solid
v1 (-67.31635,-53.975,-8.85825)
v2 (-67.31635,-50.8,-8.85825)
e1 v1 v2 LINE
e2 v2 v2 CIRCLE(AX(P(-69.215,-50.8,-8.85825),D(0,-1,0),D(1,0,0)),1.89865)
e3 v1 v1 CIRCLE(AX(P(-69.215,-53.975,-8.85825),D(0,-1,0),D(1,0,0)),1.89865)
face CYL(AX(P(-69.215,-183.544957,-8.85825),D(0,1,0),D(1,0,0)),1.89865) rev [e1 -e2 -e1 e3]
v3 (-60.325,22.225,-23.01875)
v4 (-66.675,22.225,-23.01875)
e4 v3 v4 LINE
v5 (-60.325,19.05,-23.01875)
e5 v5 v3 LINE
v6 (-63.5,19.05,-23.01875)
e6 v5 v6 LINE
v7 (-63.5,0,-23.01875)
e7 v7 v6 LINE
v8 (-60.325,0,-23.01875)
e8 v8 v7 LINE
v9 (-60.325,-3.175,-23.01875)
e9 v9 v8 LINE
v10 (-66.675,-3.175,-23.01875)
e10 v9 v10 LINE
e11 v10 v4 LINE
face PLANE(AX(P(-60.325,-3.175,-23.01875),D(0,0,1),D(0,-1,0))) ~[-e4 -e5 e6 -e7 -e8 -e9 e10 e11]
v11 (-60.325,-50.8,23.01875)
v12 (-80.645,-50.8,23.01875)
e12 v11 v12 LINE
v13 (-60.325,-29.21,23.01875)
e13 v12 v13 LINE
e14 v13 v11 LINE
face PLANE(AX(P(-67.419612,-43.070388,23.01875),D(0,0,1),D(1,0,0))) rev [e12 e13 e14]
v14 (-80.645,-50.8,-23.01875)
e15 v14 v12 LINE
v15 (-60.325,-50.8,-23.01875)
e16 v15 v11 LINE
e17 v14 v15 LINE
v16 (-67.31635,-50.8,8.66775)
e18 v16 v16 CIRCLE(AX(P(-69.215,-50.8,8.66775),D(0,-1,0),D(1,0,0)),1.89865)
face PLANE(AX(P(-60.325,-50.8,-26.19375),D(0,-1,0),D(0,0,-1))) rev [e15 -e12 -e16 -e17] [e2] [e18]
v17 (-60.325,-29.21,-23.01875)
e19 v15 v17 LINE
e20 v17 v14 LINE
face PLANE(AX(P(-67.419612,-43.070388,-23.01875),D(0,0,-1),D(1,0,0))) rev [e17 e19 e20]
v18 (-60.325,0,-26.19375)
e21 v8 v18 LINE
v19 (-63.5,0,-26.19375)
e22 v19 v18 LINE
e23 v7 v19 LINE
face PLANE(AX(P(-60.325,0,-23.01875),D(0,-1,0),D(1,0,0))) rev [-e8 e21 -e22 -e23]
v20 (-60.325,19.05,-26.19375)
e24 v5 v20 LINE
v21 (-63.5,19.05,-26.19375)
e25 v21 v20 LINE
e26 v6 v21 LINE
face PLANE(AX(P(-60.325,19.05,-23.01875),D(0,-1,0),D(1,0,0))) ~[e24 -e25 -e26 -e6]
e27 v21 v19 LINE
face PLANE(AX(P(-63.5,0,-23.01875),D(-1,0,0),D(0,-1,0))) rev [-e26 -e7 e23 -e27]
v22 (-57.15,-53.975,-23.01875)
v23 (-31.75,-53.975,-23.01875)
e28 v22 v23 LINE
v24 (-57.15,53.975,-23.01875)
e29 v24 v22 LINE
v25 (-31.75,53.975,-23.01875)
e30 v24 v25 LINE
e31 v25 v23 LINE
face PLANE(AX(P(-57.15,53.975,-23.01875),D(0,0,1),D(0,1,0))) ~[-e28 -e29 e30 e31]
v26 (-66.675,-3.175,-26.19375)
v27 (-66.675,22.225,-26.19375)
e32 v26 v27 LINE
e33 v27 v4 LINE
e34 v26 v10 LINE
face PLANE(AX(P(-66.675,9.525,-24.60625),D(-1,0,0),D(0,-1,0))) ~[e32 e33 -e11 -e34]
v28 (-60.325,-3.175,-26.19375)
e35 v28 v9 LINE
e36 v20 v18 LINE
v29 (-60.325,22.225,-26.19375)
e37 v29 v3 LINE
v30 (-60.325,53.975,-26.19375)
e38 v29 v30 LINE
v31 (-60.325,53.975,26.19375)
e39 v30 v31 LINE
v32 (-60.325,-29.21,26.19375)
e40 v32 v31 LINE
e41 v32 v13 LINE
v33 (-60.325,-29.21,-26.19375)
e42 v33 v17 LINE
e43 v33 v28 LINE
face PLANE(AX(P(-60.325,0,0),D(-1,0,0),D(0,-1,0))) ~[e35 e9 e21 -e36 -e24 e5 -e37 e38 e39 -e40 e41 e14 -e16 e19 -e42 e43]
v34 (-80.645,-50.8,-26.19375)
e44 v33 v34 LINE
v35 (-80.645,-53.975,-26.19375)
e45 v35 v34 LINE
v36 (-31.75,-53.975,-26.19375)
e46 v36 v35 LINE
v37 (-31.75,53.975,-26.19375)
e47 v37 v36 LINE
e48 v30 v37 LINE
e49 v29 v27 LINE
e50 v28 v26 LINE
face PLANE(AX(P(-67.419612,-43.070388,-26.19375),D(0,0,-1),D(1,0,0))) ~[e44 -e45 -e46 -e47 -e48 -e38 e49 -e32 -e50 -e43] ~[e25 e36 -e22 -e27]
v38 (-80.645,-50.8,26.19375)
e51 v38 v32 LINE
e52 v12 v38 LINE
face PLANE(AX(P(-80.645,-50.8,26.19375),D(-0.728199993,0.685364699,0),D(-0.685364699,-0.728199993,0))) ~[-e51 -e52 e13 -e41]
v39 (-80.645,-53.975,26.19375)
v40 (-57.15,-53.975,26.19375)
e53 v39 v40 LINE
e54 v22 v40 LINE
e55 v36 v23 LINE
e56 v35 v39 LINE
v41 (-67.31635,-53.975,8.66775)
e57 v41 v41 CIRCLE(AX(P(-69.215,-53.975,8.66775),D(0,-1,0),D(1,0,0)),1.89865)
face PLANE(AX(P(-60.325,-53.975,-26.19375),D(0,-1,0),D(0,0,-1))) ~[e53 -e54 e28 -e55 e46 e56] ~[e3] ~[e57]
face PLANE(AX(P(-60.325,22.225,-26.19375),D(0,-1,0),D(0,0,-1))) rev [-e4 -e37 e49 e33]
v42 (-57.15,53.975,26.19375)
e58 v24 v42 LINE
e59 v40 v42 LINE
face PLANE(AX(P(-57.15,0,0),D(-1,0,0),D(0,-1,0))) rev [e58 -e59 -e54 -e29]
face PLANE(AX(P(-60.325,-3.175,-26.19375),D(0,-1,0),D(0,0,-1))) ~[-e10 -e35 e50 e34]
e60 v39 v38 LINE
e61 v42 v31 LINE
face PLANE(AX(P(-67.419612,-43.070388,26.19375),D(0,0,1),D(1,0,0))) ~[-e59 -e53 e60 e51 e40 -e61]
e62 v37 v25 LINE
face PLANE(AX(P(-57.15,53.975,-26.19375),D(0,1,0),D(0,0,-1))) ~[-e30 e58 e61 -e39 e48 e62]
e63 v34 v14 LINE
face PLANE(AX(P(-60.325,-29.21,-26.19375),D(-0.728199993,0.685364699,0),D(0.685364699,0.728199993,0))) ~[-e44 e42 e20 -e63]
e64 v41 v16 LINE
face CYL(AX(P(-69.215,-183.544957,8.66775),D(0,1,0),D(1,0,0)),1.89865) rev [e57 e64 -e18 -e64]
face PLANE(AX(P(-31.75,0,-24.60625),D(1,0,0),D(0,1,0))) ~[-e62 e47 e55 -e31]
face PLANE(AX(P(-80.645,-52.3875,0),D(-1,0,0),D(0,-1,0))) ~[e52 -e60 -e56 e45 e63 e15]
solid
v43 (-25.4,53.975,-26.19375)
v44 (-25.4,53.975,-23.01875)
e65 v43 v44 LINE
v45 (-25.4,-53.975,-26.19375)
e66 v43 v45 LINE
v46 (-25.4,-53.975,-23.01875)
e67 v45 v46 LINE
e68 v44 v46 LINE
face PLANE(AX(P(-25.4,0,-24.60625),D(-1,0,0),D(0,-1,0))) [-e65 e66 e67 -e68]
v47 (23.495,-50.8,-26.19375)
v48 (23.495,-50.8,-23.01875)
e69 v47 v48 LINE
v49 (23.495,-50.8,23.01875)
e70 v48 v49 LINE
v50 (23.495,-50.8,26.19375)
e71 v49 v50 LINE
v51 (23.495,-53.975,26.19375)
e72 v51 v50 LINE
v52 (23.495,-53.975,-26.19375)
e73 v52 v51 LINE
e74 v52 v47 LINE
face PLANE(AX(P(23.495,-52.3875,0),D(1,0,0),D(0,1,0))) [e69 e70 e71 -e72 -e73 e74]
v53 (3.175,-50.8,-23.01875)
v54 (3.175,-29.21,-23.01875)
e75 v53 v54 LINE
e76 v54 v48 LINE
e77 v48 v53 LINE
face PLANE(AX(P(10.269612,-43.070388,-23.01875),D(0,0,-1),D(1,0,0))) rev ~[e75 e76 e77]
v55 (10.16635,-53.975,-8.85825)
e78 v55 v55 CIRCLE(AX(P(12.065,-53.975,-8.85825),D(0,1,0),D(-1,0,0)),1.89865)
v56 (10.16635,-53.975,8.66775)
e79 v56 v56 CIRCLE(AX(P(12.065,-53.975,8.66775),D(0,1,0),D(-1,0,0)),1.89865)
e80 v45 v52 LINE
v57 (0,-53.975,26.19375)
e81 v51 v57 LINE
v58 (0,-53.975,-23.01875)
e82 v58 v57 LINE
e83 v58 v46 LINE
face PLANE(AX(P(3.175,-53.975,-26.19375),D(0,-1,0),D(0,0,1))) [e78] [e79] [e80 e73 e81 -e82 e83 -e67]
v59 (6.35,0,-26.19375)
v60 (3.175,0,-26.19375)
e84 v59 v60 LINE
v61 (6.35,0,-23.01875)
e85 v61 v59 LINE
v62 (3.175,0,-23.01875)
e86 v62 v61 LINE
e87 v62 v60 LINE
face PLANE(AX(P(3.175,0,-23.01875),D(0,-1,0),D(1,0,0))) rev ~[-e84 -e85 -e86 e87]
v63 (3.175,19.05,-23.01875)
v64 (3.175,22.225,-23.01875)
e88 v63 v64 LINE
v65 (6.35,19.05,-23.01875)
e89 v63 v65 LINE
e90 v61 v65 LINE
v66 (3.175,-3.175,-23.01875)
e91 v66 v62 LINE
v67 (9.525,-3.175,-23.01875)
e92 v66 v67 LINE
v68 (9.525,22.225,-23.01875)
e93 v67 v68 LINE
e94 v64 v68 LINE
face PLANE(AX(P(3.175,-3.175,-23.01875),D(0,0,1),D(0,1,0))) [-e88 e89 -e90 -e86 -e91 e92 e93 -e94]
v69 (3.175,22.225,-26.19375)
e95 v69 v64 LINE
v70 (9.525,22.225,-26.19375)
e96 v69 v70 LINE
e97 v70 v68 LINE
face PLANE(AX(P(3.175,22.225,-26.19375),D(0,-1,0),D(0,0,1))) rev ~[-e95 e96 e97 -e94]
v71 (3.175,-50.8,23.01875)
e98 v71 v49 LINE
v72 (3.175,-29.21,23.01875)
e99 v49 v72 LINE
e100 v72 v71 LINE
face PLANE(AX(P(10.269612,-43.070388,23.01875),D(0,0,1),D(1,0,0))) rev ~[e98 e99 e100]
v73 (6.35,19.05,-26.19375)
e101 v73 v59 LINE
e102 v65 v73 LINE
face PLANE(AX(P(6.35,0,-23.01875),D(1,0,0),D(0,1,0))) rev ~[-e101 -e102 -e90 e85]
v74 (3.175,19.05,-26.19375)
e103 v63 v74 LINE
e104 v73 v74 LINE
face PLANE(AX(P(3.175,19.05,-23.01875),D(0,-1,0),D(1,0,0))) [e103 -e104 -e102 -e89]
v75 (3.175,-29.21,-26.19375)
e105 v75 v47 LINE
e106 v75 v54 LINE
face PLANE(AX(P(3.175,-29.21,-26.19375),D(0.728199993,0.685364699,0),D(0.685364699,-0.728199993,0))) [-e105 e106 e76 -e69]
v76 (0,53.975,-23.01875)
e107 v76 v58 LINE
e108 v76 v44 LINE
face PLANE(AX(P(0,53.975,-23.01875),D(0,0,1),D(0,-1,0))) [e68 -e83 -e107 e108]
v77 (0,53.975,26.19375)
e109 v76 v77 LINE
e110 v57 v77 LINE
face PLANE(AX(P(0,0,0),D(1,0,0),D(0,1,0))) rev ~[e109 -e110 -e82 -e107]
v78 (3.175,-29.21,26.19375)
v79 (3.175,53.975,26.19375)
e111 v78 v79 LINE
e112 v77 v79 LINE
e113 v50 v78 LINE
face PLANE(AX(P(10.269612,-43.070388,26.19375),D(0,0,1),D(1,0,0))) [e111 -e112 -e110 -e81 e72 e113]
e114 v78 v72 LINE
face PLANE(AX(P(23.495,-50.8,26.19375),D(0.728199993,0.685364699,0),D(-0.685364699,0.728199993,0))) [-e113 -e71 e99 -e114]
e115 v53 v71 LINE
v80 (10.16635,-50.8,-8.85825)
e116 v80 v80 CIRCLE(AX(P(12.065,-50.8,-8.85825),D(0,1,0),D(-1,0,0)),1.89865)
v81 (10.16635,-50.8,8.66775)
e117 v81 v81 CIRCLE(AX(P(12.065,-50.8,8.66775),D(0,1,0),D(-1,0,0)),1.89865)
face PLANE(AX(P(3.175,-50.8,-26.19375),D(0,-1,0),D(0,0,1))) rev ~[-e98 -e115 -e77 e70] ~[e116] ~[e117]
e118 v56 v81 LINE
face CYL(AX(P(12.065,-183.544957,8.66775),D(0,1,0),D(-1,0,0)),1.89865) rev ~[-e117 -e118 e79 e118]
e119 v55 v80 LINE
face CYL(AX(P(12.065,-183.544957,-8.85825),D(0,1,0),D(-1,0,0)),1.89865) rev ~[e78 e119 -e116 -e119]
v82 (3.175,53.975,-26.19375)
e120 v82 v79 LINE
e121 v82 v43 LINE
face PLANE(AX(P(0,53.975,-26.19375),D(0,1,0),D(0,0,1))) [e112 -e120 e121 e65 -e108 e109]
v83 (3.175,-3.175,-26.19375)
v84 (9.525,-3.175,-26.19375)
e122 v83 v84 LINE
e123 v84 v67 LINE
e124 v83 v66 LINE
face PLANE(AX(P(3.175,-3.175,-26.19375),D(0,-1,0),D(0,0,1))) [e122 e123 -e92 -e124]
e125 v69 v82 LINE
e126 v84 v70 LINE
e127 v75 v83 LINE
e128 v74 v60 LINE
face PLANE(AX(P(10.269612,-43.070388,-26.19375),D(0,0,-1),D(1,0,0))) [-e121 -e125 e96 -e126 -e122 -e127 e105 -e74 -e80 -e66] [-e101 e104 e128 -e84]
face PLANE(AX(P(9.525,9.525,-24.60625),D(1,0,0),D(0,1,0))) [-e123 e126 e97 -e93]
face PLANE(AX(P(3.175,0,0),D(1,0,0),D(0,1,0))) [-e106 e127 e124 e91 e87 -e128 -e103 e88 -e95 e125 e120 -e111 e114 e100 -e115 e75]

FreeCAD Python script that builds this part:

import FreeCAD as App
import Part
import Sketcher

V = App.Vector
Q = App.Units.Quantity


def add_polygon(sketch, points):
    """Adds a closed chain of lines whose ends are joined by coincident constraints."""
    first, n = sketch.GeometryCount, len(points)
    for a, b in zip(points, points[1:] + points[:1]):
        sketch.addGeometry(Part.LineSegment(App.Vector(*a, 0), App.Vector(*b, 0)), False)
    for i in range(n):
        sketch.addConstraint(Sketcher.Constraint("Coincident", first + i, 2, first + (i + 1) % n, 1))

doc = App.newDocument("Part")
body = doc.addObject("PartDesign::Body", "Body")

# Sketch on YZ plane
sketch1 = doc.addObject("Sketcher::SketchObject", "Sketch")
body.addObject(sketch1)
sketch1.AttachmentSupport = (doc.YZ_Plane, [""])
sketch1.MapMode = "FlatFace"
add_polygon(sketch1, [(-54, 26), (-54, -26), (54, -26), (54, 26)])  # lines 0-3
sketch1.addConstraint(Sketcher.Constraint("Vertical", 0))
sketch1.addConstraint(Sketcher.Constraint("Horizontal", 1))
sketch1.addConstraint(Sketcher.Constraint("Vertical", 2))
sketch1.addConstraint(Sketcher.Constraint("Horizontal", 3))
sketch1.addConstraint(Sketcher.Constraint("Symmetric", 0, 2, 2, 2, -1, 1))
sketch1.addConstraint(Sketcher.Constraint("DistanceX", 1, 1, 1, 2, Q("4.25 in")))
sketch1.addConstraint(Sketcher.Constraint("DistanceY", 0, 2, 0, 1, Q("2.0625 in")))
pad1 = doc.addObject("PartDesign::Pad", "Pad")
body.addObject(pad1)
pad1.Profile = sketch1
pad1.Length = Q("0.125 in")

# Sketch on YZ plane
sketch2 = doc.addObject("Sketcher::SketchObject", "Sketch001")
body.addObject(sketch2)
sketch2.AttachmentSupport = (doc.YZ_Plane, [""])
sketch2.MapMode = "FlatFace"
add_polygon(sketch2, [(54, -23), (54, -26.2), (-54, -26.2), (-54, -23)])  # lines 0-3
sketch2.addConstraint(Sketcher.Constraint("Vertical", 0))
sketch2.addConstraint(Sketcher.Constraint("Horizontal", 1))
sketch2.addConstraint(Sketcher.Constraint("Vertical", 2))
sketch2.addConstraint(Sketcher.Constraint("Horizontal", 3))
sketch2.addConstraint(Sketcher.Constraint("DistanceX", 1, 2, 1, 1, Q("4.25 in")))
sketch2.addConstraint(Sketcher.Constraint("DistanceY", 0, 2, 0, 1, Q("0.125 in")))
sketch2.addConstraint(Sketcher.Constraint("DistanceX", -1, 1, 0, 2, Q("2.125 in")))
sketch2.addConstraint(Sketcher.Constraint("DistanceY", 0, 2, -1, 1, Q("1.03125 in")))
pad2 = doc.addObject("PartDesign::Pad", "Pad001")
body.addObject(pad2)
pad2.Profile = sketch2
pad2.Length = Q("1 in")
pad2.Reversed = True

# Sketch on YZ plane
sketch3 = doc.addObject("Sketcher::SketchObject", "Sketch002")
body.addObject(sketch3)
sketch3.AttachmentSupport = (doc.YZ_Plane, [""])
sketch3.MapMode = "FlatFace"
sketch3.AttachmentOffset = App.Placement(V(0, 0, 0.125 * 25.4), App.Rotation())
add_polygon(sketch3, [(-54, 26.2), (-54, -26.2), (-50.8, -26.2), (-50.8, 26.2)])  # lines 0-3
sketch3.addConstraint(Sketcher.Constraint("Vertical", 0))
sketch3.addConstraint(Sketcher.Constraint("Horizontal", 1))
sketch3.addConstraint(Sketcher.Constraint("Vertical", 2))
sketch3.addConstraint(Sketcher.Constraint("Horizontal", 3))
sketch3.addConstraint(Sketcher.Constraint("DistanceX", 1, 2, -1, 1, Q("2 in")))
sketch3.addConstraint(Sketcher.Constraint("DistanceX", 1, 1, 1, 2, Q("0.125 in")))
sketch3.addConstraint(Sketcher.Constraint("DistanceY", 0, 2, 0, 1, Q("2.0625 in")))
sketch3.addConstraint(Sketcher.Constraint("DistanceY", 0, 2, -1, 1, Q("1.03125 in")))
pad3 = doc.addObject("PartDesign::Pad", "Pad002")
body.addObject(pad3)
pad3.Profile = sketch3
pad3.Length = Q("0.8 in")

# Sketch on XY plane
sketch4 = doc.addObject("Sketcher::SketchObject", "Sketch003")
body.addObject(sketch4)
sketch4.AttachmentSupport = (doc.XY_Plane, [""])
sketch4.MapMode = "FlatFace"
sketch4.AttachmentOffset = App.Placement(V(0, 0, -1.03125 * 25.4), App.Rotation())
add_polygon(sketch4, [(3, -29), (23, -51), (3, -51)])  # lines 0-2
sketch4.addConstraint(Sketcher.Constraint("Horizontal", 1))
sketch4.addConstraint(Sketcher.Constraint("Vertical", 2))
sketch4.addConstraint(Sketcher.Constraint("DistanceX", 1, 2, 1, 1, Q("0.8 in")))
sketch4.addConstraint(Sketcher.Constraint("DistanceY", 0, 2, -1, 1, Q("2 in")))
sketch4.addConstraint(Sketcher.Constraint("DistanceY", 2, 1, 2, 2, Q("0.85 in")))
sketch4.addConstraint(Sketcher.Constraint("DistanceX", -1, 1, 0, 2, Q("0.925 in")))
pad4 = doc.addObject("PartDesign::Pad", "Pad003")
body.addObject(pad4)
pad4.Profile = sketch4
pad4.Length = Q("0.125 in")

# Sketch on XY plane
sketch5 = doc.addObject("Sketcher::SketchObject", "Sketch004")
body.addObject(sketch5)
sketch5.AttachmentSupport = (doc.XY_Plane, [""])
sketch5.MapMode = "FlatFace"
sketch5.AttachmentOffset = App.Placement(V(0, 0, 1.03125 * 25.4), App.Rotation())
add_polygon(sketch5, [(3, -51), (23, -51), (3, -29)])  # lines 0-2
sketch5.addConstraint(Sketcher.Constraint("Horizontal", 0))
sketch5.addConstraint(Sketcher.Constraint("Vertical", 2))
sketch5.addConstraint(Sketcher.Constraint("DistanceX", 0, 1, 0, 2, Q("0.8 in")))
sketch5.addConstraint(Sketcher.Constraint("DistanceY", 0, 2, -1, 1, Q("2 in")))
sketch5.addConstraint(Sketcher.Constraint("DistanceY", 2, 2, 2, 1, Q("0.85 in")))
sketch5.addConstraint(Sketcher.Constraint("DistanceX", -1, 1, 0, 2, Q("0.925 in")))
pad5 = doc.addObject("PartDesign::Pad", "Pad004")
body.addObject(pad5)
pad5.Profile = sketch5
pad5.Length = Q("0.125 in")
pad5.Reversed = True

# Sketch on YZ plane
sketch6 = doc.addObject("Sketcher::SketchObject", "Sketch005")
body.addObject(sketch6)
sketch6.AttachmentSupport = (doc.YZ_Plane, [""])
sketch6.MapMode = "FlatFace"
sketch6.AttachmentOffset = App.Placement(V(0, 0, 0.125 * 25.4), App.Rotation())
add_polygon(sketch6, [(-3.2, -23), (-3.2, -26.2), (22.2, -26.2), (22.2, -23)])  # lines 0-3
sketch6.addConstraint(Sketcher.Constraint("Vertical", 0))
sketch6.addConstraint(Sketcher.Constraint("Horizontal", 1))
sketch6.addConstraint(Sketcher.Constraint("Vertical", 2))
sketch6.addConstraint(Sketcher.Constraint("Horizontal", 3))
sketch6.addConstraint(Sketcher.Constraint("DistanceX", 1, 1, 1, 2, Q("1 in")))
sketch6.addConstraint(Sketcher.Constraint("DistanceY", 0, 2, 0, 1, Q("0.125 in")))
sketch6.addConstraint(Sketcher.Constraint("DistanceX", 0, 2, -1, 1, Q("0.125 in")))
sketch6.addConstraint(Sketcher.Constraint("DistanceY", 0, 2, -1, 1, Q("1.03125 in")))
pad6 = doc.addObject("PartDesign::Pad", "Pad005")
body.addObject(pad6)
pad6.Profile = sketch6
pad6.Length = Q("0.25 in")

# Sketch on XY plane
sketch7 = doc.addObject("Sketcher::SketchObject", "Sketch006")
body.addObject(sketch7)
sketch7.AttachmentSupport = (doc.XY_Plane, [""])
sketch7.MapMode = "FlatFace"
sketch7.AttachmentOffset = App.Placement(V(0, 0, -0.90625 * 25.4), App.Rotation())
add_polygon(sketch7, [(3.2, 19.1), (3.2, 0), (6.3, 0), (6.3, 19.1)])  # lines 0-3
sketch7.addConstraint(Sketcher.Constraint("Vertical", 0))
sketch7.addConstraint(Sketcher.Constraint("Horizontal", 1))
sketch7.addConstraint(Sketcher.Constraint("Vertical", 2))
sketch7.addConstraint(Sketcher.Constraint("Horizontal", 3))
sketch7.addConstraint(Sketcher.Constraint("PointOnObject", 0, 2, -1))
sketch7.addConstraint(Sketcher.Constraint("DistanceY", 0, 2, 0, 1, Q("0.75 in")))
sketch7.addConstraint(Sketcher.Constraint("DistanceX", 1, 1, 1, 2, Q("0.125 in")))
sketch7.addConstraint(Sketcher.Constraint("DistanceX", -1, 1, 1, 2, Q("0.25 in")))
pocket1 = doc.addObject("PartDesign::Pocket", "Pocket")
body.addObject(pocket1)
pocket1.Profile = sketch7
pocket1.Length = Q("1 in")

# Sketch on XZ plane
sketch8 = doc.addObject("Sketcher::SketchObject", "Sketch007")
body.addObject(sketch8)
sketch8.AttachmentSupport = (doc.XZ_Plane, [""])
sketch8.MapMode = "FlatFace"
sketch8.AttachmentOffset = App.Placement(V(0, 0, 2.125 * 25.4), App.Rotation())
sketch8.addGeometry(Part.Circle(V(12.1, 8.7, 0), V(0, 0, 1), 1.9), False)
sketch8.addGeometry(Part.Circle(V(12.1, -8.9, 0), V(0, 0, 1), 1.9), False)
sketch8.addConstraint(Sketcher.Constraint("Equal", 0, 1))
sketch8.addConstraint(Sketcher.Constraint("Vertical", 0, 3, 1, 3))
sketch8.addConstraint(Sketcher.Constraint("Diameter", 0, Q("0.1495 in")))
sketch8.addConstraint(Sketcher.Constraint("DistanceY", 1, 3, 0, 3, Q("0.69 in")))
sketch8.addConstraint(Sketcher.Constraint("DistanceX", -1, 1, 0, 3, Q("0.475 in")))
sketch8.addConstraint(Sketcher.Constraint("DistanceY", -1, 1, 0, 3, 8.66775))
doc.recompute()
hole = doc.addObject("PartDesign::Hole", "Hole")
body.addObject(hole)
hole.Profile = sketch8
hole.ThreadType = "None"
hole.Diameter = Q("0.1495 in")
hole.DepthType = "ThroughAll"
body2 = doc.addObject("PartDesign::Body", "Body001")
doc.recompute()

mirroring = doc.addObject("Part::Mirroring", "Mirroring")
mirroring.Source = body
mirroring.Base = V(-28.575, 0, -24.60625)
mirroring.Normal = V(-1, 0, 0)
body2.BaseFeature = mirroring
doc.recompute()
mirroring.Visibility = False

doc.recompute()
